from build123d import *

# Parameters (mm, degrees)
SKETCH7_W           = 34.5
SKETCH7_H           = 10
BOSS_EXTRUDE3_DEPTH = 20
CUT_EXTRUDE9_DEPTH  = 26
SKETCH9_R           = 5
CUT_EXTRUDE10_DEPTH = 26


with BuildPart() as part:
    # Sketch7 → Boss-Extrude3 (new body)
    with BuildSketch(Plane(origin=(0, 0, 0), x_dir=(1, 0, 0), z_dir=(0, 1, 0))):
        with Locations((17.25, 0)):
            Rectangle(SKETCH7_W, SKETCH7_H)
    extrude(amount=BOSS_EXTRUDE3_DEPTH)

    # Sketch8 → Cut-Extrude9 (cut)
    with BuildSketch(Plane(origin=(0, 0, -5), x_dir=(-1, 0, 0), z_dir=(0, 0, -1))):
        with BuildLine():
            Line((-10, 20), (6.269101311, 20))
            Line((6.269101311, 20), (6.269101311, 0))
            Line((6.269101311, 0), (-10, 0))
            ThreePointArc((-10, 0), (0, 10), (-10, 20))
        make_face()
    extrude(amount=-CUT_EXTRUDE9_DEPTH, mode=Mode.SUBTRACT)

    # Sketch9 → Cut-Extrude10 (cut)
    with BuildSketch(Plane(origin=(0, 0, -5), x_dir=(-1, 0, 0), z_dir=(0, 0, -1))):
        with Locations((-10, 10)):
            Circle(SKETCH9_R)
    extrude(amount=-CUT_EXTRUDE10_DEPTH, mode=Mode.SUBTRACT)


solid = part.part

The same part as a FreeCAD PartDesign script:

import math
import FreeCAD as App
import Part
import Sketcher
from FreeCAD import Vector
Q = App.Units.Quantity

doc = App.newDocument("Part")
params = doc.addObject("Spreadsheet::Sheet", "Params")
for row, (alias, value) in enumerate([
    ("sketch1_height", "10 mm"),
    ("sketch1_width", "34.5 mm"),
    ("pad1_length", "20 mm"),
    ("sketch2_radius", "10 mm"),
    ("pocket1_length", "26 mm"),
    ("sketch3_diameter", "10 mm"),
    ("pocket2_length", "26 mm"),
], start=1):
    params.set(f"A{row}", alias)
    params.set(f"B{row}", "=" + value)
    params.setAlias(f"B{row}", alias)

body = doc.addObject("PartDesign::Body", "Body")

# Sketch on XZ plane
sketch1 = body.newObject("Sketcher::SketchObject", "Sketch")
sketch1.AttachmentSupport = (doc.getObject("XZ_Plane"), [""])
sketch1.MapMode = "FlatFace"
sketch1.addGeometry(Part.LineSegment(Vector(0, -5, 0), Vector(0, 5, 0)), False)
sketch1.addGeometry(Part.LineSegment(Vector(0, 5, 0), Vector(34.5, 5, 0)), False)
sketch1.addGeometry(Part.LineSegment(Vector(34.5, 5, 0), Vector(34.5, -5, 0)), False)
sketch1.addGeometry(Part.LineSegment(Vector(34.5, -5, 0), Vector(0, -5, 0)), False)
sketch1.addConstraint(Sketcher.Constraint("Coincident", 0, 2, 1, 1))
sketch1.addConstraint(Sketcher.Constraint("Coincident", 1, 2, 2, 1))
sketch1.addConstraint(Sketcher.Constraint("Coincident", 2, 2, 3, 1))
sketch1.addConstraint(Sketcher.Constraint("Coincident", 3, 2, 0, 1))
sketch1.addConstraint(Sketcher.Constraint("Vertical", 0))
sketch1.addConstraint(Sketcher.Constraint("Horizontal", 1))
sketch1.addConstraint(Sketcher.Constraint("Vertical", 2))
sketch1.addConstraint(Sketcher.Constraint("Horizontal", 3))
sketch1.addConstraint(Sketcher.Constraint("Symmetric", 0, 2, 3, 2, -1, 1))
sketch1.addConstraint(Sketcher.Constraint("DistanceY", 0, 1, 0, 2, Q("10 mm")))
sketch1.addConstraint(Sketcher.Constraint("DistanceX", 1, 1, 1, 2, Q("34.5 mm")))
sketch1.setExpression("Constraints[9]", "Params.sketch1_height")
sketch1.setExpression("Constraints[10]", "Params.sketch1_width")
pad1 = body.newObject("PartDesign::Pad", "Pad")
pad1.Profile = sketch1
pad1.setExpression("Length", "Params.pad1_length")
pad1.Reversed = True

# Sketch on XY plane
sketch2 = body.newObject("Sketcher::SketchObject", "Sketch001")
sketch2.AttachmentSupport = (doc.getObject("XY_Plane"), [""])
sketch2.MapMode = "FlatFace"
sketch2.AttachmentOffset = App.Placement(Vector(0, 0, -5), App.Rotation())
sketch2.addGeometry(Part.LineSegment(Vector(-6.269101, 20, 0), Vector(10, 20, 0)), False)
sketch2.addGeometry(Part.ArcOfCircle(Part.Circle(Vector(10, 10, 0), Vector(0, 0, 1), 10), math.radians(90), math.radians(270)), False)
sketch2.addGeometry(Part.LineSegment(Vector(10, 0, 0), Vector(-6.269101, 0, 0)), False)
sketch2.addGeometry(Part.LineSegment(Vector(-6.269101, 0, 0), Vector(-6.269101, 20, 0)), False)
sketch2.addConstraint(Sketcher.Constraint("Tangent", 0, 2, 1, 1))
sketch2.addConstraint(Sketcher.Constraint("Tangent", 1, 2, 2, 1))
sketch2.addConstraint(Sketcher.Constraint("Coincident", 2, 2, 3, 1))
sketch2.addConstraint(Sketcher.Constraint("Coincident", 3, 2, 0, 1))
sketch2.addConstraint(Sketcher.Constraint("Horizontal", 0))
sketch2.addConstraint(Sketcher.Constraint("Horizontal", 2))
sketch2.addConstraint(Sketcher.Constraint("Vertical", 3))
sketch2.addConstraint(Sketcher.Constraint("PointOnObject", 1, 2, -1))
sketch2.addConstraint(Sketcher.Constraint("Radius", 1, Q("10 mm")))
sketch2.addConstraint(Sketcher.Constraint("DistanceX", -1, 1, 1, 3, Q("10 mm")))
sketch2.addConstraint(Sketcher.Constraint("DistanceX", 0, 1, 0, 2, Q("16.269101 mm")))
sketch2.setExpression("Constraints[8]", "Params.sketch2_radius")
pocket1 = body.newObject("PartDesign::Pocket", "Pocket")
pocket1.Profile = sketch2
pocket1.setExpression("Length", "Params.pocket1_length")
pocket1.Reversed = True

# Sketch on XY plane
sketch3 = body.newObject("Sketcher::SketchObject", "Sketch002")
sketch3.AttachmentSupport = (doc.getObject("XY_Plane"), [""])
sketch3.MapMode = "FlatFace"
sketch3.AttachmentOffset = App.Placement(Vector(0, 0, -5), App.Rotation())
sketch3.addGeometry(Part.Circle(Vector(10, 10, 0), Vector(0, 0, 1), 5), False)
sketch3.addConstraint(Sketcher.Constraint("Diameter", 0, Q("10 mm")))
sketch3.addConstraint(Sketcher.Constraint("DistanceX", -1, 1, 0, 3, Q("10 mm")))
sketch3.addConstraint(Sketcher.Constraint("DistanceY", -1, 1, 0, 3, Q("10 mm")))
sketch3.setExpression("Constraints[0]", "Params.sketch3_diameter")
pocket2 = body.newObject("PartDesign::Pocket", "Pocket001")
pocket2.Profile = sketch3
pocket2.setExpression("Length", "Params.pocket2_length")
pocket2.Reversed = True

doc.recompute()
